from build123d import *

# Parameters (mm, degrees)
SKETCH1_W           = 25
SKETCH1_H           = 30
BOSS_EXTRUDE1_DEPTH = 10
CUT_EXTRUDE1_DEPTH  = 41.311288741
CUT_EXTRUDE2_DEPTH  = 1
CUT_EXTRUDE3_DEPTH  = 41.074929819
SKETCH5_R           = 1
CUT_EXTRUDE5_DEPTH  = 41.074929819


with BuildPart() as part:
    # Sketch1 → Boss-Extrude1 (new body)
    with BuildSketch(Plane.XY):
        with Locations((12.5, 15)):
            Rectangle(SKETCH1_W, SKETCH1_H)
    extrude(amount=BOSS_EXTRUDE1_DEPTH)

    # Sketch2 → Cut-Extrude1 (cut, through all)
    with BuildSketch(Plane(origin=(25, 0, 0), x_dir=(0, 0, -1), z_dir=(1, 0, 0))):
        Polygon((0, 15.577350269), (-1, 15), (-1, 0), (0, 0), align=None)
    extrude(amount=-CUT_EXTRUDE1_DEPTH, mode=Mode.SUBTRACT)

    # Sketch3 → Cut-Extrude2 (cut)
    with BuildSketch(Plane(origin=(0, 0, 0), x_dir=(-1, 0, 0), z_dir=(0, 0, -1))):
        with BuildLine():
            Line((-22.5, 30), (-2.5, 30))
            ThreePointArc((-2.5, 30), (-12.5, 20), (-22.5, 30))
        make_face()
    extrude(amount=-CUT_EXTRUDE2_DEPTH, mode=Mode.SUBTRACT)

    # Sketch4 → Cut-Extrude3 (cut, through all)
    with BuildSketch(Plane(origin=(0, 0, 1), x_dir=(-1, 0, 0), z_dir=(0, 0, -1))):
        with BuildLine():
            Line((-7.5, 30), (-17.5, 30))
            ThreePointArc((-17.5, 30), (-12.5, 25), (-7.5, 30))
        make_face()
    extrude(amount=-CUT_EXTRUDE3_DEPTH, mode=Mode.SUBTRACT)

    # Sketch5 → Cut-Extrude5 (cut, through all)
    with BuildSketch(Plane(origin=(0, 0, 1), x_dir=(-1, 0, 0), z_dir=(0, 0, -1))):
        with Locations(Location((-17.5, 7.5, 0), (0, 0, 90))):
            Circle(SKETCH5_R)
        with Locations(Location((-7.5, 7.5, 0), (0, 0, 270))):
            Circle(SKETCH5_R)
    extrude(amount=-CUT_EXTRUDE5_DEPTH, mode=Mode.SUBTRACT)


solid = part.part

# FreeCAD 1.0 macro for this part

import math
import FreeCAD as App
import Part
import Sketcher

V = App.Vector
Q = App.Units.Quantity


def add_polygon(sketch, points):
    """Adds a closed chain of lines whose ends are joined by coincident constraints."""
    first, n = sketch.GeometryCount, len(points)
    for a, b in zip(points, points[1:] + points[:1]):
        sketch.addGeometry(Part.LineSegment(App.Vector(*a, 0), App.Vector(*b, 0)), False)
    for i in range(n):
        sketch.addConstraint(Sketcher.Constraint("Coincident", first + i, 2, first + (i + 1) % n, 1))

doc = App.newDocument("Part")
body = doc.addObject("PartDesign::Body", "Body")

# Sketch on XY plane
sketch1 = body.newObject("Sketcher::SketchObject", "Sketch")
sketch1.AttachmentSupport = (doc.getObject("XY_Plane"), [""])
sketch1.MapMode = "FlatFace"
add_polygon(sketch1, [(0, 30), (0, 0), (25, 0), (25, 30)])  # lines 0-3
sketch1.addConstraint([
    Sketcher.Constraint("Vertical", 0),
    Sketcher.Constraint("Horizontal", 1),
    Sketcher.Constraint("Vertical", 2),
    Sketcher.Constraint("Horizontal", 3),
    Sketcher.Constraint("Coincident", 0, 2, -1, 1),
    Sketcher.Constraint("DistanceX", 1, 1, 1, 2, 25.0),
    Sketcher.Constraint("DistanceY", 0, 2, 0, 1, 30.0),
])
pad1 = body.newObject("PartDesign::Pad", "Pad")
pad1.Profile = sketch1
pad1.Length = 10

# Sketch on YZ plane
sketch2 = body.newObject("Sketcher::SketchObject", "Sketch001")
sketch2.AttachmentSupport = (doc.getObject("YZ_Plane"), [""])
sketch2.MapMode = "FlatFace"
sketch2.AttachmentOffset = App.Placement(V(0, 0, 25), App.Rotation())
add_polygon(sketch2, [(15.6, 0), (15, 1), (0, 1), (0, 0)])  # lines 0-3
sketch2.addConstraint([
    Sketcher.Constraint("Horizontal", 1),
    Sketcher.Constraint("Vertical", 2),
    Sketcher.Constraint("Horizontal", 3),
    Sketcher.Constraint("Coincident", 2, 2, -1, 1),
    Sketcher.Constraint("DistanceX", 1, 2, 1, 1, 15.0),
    Sketcher.Constraint("DistanceY", 2, 2, 2, 1, 1.0),
    Sketcher.Constraint("Angle", 0, Q("120 deg")),
])
pocket1 = body.newObject("PartDesign::Pocket", "Pocket")
pocket1.Profile = sketch2
pocket1.Type = "ThroughAll"

# Sketch on XY plane
sketch3 = body.newObject("Sketcher::SketchObject", "Sketch002")
sketch3.AttachmentSupport = (doc.getObject("XY_Plane"), [""])
sketch3.MapMode = "FlatFace"
sketch3.addGeometry([
    Part.LineSegment(V(2, 30, 0), V(22, 30, 0)),
    Part.ArcOfCircle(Part.Circle(V(12, 30, 0), V(0, 0, 1), 10), math.radians(180), math.radians(360)),
], False)
sketch3.addConstraint([
    Sketcher.Constraint("Coincident", 0, 1, 1, 1),
    Sketcher.Constraint("Coincident", 1, 2, 0, 2),
    Sketcher.Constraint("Horizontal", 0),
    Sketcher.Constraint("Horizontal", 1, 3, 0, 1),
    Sketcher.Constraint("Radius", 1, 10.0),
    Sketcher.Constraint("DistanceY", -1, 1, 1, 3, 30.0),
    Sketcher.Constraint("DistanceX", -1, 1, 1, 3, 12.5),
])
pocket2 = body.newObject("PartDesign::Pocket", "Pocket001")
pocket2.Profile = sketch3
pocket2.Length = 1
pocket2.Reversed = True

# Sketch on XY plane
sketch4 = body.newObject("Sketcher::SketchObject", "Sketch003")
sketch4.AttachmentSupport = (doc.getObject("XY_Plane"), [""])
sketch4.MapMode = "FlatFace"
sketch4.AttachmentOffset = App.Placement(V(0, 0, 1), App.Rotation())
sketch4.addGeometry([
    Part.LineSegment(V(8, 30, 0), V(18, 30, 0)),
    Part.ArcOfCircle(Part.Circle(V(12, 30, 0), V(0, 0, 1), 5), math.radians(180), math.radians(360)),
], False)
sketch4.addConstraint([
    Sketcher.Constraint("Coincident", 0, 1, 1, 1),
    Sketcher.Constraint("Coincident", 1, 2, 0, 2),
    Sketcher.Constraint("Horizontal", 0),
    Sketcher.Constraint("Horizontal", 1, 3, 0, 1),
    Sketcher.Constraint("Radius", 1, 5.0),
    Sketcher.Constraint("DistanceY", -1, 1, 1, 3, 30.0),
    Sketcher.Constraint("DistanceX", -1, 1, 1, 3, 12.5),
])
pocket3 = body.newObject("PartDesign::Pocket", "Pocket002")
pocket3.Profile = sketch4
pocket3.Type = "ThroughAll"
pocket3.Reversed = True

# Sketch on XY plane
sketch5 = body.newObject("Sketcher::SketchObject", "Sketch004")
sketch5.AttachmentSupport = (doc.getObject("XY_Plane"), [""])
sketch5.MapMode = "FlatFace"
sketch5.AttachmentOffset = App.Placement(V(0, 0, 1), App.Rotation())
sketch5.addGeometry([
    Part.Circle(V(17.5, 7.5, 0), V(0, 0, 1), 1),
    Part.Circle(V(7.5, 7.5, 0), V(0, 0, 1), 1),
], False)
sketch5.addConstraint([
    Sketcher.Constraint("Equal", 0, 1),
    Sketcher.Constraint("Horizontal", 0, 3, 1, 3),
    Sketcher.Constraint("Diameter", 0, 2.0),
    Sketcher.Constraint("DistanceX", 1, 3, 0, 3, 10.0),
    Sketcher.Constraint("DistanceX", -1, 1, 0, 3, 17.5),
    Sketcher.Constraint("DistanceY", -1, 1, 0, 3, 7.5),
])
pocket4 = body.newObject("PartDesign::Pocket", "Pocket003")
pocket4.Profile = sketch5
pocket4.Type = "ThroughAll"
pocket4.Reversed = True

doc.recompute()
